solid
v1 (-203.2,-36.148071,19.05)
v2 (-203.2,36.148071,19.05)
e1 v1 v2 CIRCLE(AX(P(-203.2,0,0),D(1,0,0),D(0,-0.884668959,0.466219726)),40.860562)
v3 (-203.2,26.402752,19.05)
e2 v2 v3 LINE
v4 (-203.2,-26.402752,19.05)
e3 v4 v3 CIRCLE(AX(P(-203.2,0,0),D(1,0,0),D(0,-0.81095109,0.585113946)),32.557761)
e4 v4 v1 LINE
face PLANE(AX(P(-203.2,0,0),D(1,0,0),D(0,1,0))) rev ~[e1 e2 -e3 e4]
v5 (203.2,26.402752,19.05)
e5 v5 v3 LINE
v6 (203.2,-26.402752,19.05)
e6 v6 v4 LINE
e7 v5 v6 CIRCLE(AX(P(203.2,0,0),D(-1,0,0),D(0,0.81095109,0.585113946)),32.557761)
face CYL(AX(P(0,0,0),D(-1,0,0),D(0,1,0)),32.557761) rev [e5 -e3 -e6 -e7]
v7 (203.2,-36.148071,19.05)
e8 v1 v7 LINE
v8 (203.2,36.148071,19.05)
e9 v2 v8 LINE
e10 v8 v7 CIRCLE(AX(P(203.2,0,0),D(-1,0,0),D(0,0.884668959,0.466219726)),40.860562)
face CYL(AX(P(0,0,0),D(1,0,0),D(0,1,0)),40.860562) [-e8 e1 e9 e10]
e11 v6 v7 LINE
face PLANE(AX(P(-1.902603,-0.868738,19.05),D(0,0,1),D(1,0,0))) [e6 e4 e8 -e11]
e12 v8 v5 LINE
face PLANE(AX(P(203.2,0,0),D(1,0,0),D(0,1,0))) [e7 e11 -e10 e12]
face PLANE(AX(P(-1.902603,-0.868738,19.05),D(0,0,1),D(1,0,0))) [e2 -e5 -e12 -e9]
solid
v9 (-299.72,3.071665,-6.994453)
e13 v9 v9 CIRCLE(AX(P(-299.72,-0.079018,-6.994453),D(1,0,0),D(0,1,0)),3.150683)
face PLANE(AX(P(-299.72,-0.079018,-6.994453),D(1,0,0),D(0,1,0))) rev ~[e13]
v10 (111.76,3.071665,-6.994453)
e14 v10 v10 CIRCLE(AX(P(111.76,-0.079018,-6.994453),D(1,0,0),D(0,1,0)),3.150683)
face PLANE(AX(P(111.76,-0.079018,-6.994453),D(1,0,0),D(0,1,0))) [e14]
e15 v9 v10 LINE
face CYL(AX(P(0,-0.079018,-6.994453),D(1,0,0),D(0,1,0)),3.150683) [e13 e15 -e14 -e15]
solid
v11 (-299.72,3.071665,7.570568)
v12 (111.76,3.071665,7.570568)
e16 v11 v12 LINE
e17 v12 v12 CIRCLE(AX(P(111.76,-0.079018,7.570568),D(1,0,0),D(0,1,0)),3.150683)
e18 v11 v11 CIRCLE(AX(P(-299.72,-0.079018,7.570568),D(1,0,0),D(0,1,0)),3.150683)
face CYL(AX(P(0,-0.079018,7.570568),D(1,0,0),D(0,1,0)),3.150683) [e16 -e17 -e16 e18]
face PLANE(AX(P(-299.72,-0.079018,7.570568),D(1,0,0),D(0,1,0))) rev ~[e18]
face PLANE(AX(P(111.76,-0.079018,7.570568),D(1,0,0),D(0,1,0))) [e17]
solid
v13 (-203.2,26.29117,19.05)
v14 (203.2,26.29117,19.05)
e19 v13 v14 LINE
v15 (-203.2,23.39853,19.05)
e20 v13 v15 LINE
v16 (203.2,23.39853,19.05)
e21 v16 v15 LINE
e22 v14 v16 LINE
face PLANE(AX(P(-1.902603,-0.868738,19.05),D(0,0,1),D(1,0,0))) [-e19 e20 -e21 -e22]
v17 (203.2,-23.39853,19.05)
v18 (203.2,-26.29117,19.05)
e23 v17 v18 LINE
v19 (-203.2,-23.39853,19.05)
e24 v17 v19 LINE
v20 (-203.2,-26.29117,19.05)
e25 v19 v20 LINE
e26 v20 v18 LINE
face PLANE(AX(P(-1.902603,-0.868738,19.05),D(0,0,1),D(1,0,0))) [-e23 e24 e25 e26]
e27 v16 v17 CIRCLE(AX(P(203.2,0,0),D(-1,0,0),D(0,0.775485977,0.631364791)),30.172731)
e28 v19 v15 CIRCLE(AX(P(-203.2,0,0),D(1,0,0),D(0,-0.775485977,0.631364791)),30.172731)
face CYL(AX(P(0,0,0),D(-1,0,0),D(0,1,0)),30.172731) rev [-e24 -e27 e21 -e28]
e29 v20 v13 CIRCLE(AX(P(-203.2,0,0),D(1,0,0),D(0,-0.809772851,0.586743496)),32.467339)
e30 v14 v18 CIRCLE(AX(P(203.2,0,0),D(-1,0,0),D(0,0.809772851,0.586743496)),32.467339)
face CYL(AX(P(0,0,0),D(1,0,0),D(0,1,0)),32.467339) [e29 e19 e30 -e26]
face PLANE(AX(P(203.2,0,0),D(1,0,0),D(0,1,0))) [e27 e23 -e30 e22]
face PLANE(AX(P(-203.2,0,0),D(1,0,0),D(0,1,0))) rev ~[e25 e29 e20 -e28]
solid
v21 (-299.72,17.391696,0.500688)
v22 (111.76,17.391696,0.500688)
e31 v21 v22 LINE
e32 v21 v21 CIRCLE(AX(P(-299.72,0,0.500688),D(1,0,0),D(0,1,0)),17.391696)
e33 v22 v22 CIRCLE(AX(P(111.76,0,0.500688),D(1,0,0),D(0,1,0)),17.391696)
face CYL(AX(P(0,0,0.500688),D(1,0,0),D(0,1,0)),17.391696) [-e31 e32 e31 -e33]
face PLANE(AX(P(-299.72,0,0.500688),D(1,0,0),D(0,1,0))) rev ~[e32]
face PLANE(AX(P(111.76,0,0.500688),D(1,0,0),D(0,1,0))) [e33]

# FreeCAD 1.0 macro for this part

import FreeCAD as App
import Part
import Sketcher

V = App.Vector
Q = App.Units.Quantity

doc = App.newDocument("Part")
body = doc.addObject("PartDesign::Body", "Body")

# Sketch on YZ plane
sketch1 = body.newObject("Sketcher::SketchObject", "Sketch")
sketch1.AttachmentSupport = (doc.getObject("YZ_Plane"), [""])
sketch1.MapMode = "FlatFace"
sketch1.addGeometry(Part.Circle(V(0, 0, 0), V(0, 0, 1), 32.467339), False)
sketch1.addGeometry(Part.Circle(V(0, 0, 0), V(0, 0, 1), 30.172731), False)
sketch1.addConstraint(Sketcher.Constraint("Coincident", 0, 3, -1, 1))
sketch1.addConstraint(Sketcher.Constraint("Coincident", 1, 3, -1, 1))
sketch1.addConstraint(Sketcher.Constraint("Diameter", 0, 64.934678))
sketch1.addConstraint(Sketcher.Constraint("Diameter", 1, 60.345462))
pad1 = body.newObject("PartDesign::Pad", "Pad")
pad1.Profile = sketch1
pad1.Type = "TwoLengths"
pad1.Length = Q("8 in")
pad1.Length2 = Q("8 in")
body2 = doc.addObject("PartDesign::Body", "Body001")

# Sketch on YZ plane
sketch2 = body2.newObject("Sketcher::SketchObject", "Sketch001")
sketch2.AttachmentSupport = (doc.getObject("YZ_Plane001"), [""])
sketch2.MapMode = "FlatFace"
sketch2.addGeometry(Part.Circle(V(0, 0, 0), V(0, 0, 1), 40.860562), False)
sketch2.addGeometry(Part.Circle(V(0, 0, 0), V(0, 0, 1), 32.557761), False)
sketch2.addConstraint(Sketcher.Constraint("Coincident", 0, 3, -1, 1))
sketch2.addConstraint(Sketcher.Constraint("Coincident", 1, 3, -1, 1))
sketch2.addConstraint(Sketcher.Constraint("Diameter", 1, 65.115522))
sketch2.addConstraint(Sketcher.Constraint("Diameter", 0, 81.721124))
pad2 = body2.newObject("PartDesign::Pad", "Pad001")
pad2.Profile = sketch2
pad2.Type = "TwoLengths"
pad2.Length = Q("8 in")
pad2.Length2 = Q("8 in")
body3 = doc.addObject("PartDesign::Body", "Body002")
body3.AllowCompound = True

# Sketch on YZ plane
sketch3 = body3.newObject("Sketcher::SketchObject", "Sketch002")
sketch3.AttachmentSupport = (doc.getObject("YZ_Plane002"), [""])
sketch3.MapMode = "FlatFace"
sketch3.addGeometry(Part.Circle(V(-0.079018, 7.570568, 0), V(0, 0, 1), 3.150683), False)
sketch3.addGeometry(Part.Circle(V(-0.079018, -6.994453, 0), V(0, 0, 1), 3.150683), False)
sketch3.addConstraint(Sketcher.Constraint("Equal", 0, 1))
sketch3.addConstraint(Sketcher.Constraint("Vertical", 0, 3, 1, 3))
sketch3.addConstraint(Sketcher.Constraint("Diameter", 0, 6.301366))
sketch3.addConstraint(Sketcher.Constraint("DistanceY", 1, 3, 0, 3, 14.565021))
sketch3.addConstraint(Sketcher.Constraint("DistanceX", 0, 3, -1, 1, 0.079018))
sketch3.addConstraint(Sketcher.Constraint("DistanceY", -1, 1, 0, 3, 7.570568))
pad3 = body3.newObject("PartDesign::Pad", "Pad002")
pad3.Profile = sketch3
pad3.Type = "TwoLengths"
pad3.Length = Q("4.4 in")
pad3.Length2 = Q("11.8 in")
body4 = doc.addObject("PartDesign::Body", "Body003")

# Sketch on XY plane
sketch4 = body4.newObject("Sketcher::SketchObject", "Sketch003")
sketch4.AttachmentSupport = (doc.getObject("XY_Plane003"), [""])
sketch4.MapMode = "FlatFace"
sketch4.AttachmentOffset = App.Placement(V(0, 0, 0.75 * 25.4), App.Rotation())
sketch4.addGeometry(Part.LineSegment(V(-214.917138, 45.599114, 0), V(-214.917138, -47.33659, 0)), False)
sketch4.addGeometry(Part.LineSegment(V(-214.917138, -47.33659, 0), V(211.111932, -47.33659, 0)), False)
sketch4.addGeometry(Part.LineSegment(V(211.111932, -47.33659, 0), V(211.111932, 45.599114, 0)), False)
sketch4.addGeometry(Part.LineSegment(V(211.111932, 45.599114, 0), V(-214.917138, 45.599114, 0)), False)
sketch4.addConstraint(Sketcher.Constraint("Coincident", 0, 2, 1, 1))
sketch4.addConstraint(Sketcher.Constraint("Coincident", 1, 2, 2, 1))
sketch4.addConstraint(Sketcher.Constraint("Coincident", 2, 2, 3, 1))
sketch4.addConstraint(Sketcher.Constraint("Coincident", 3, 2, 0, 1))
sketch4.addConstraint(Sketcher.Constraint("Vertical", 0))
sketch4.addConstraint(Sketcher.Constraint("Horizontal", 1))
sketch4.addConstraint(Sketcher.Constraint("Vertical", 2))
sketch4.addConstraint(Sketcher.Constraint("Horizontal", 3))
sketch4.addConstraint(Sketcher.Constraint("DistanceX", 1, 1, 1, 2, 426.029071))
sketch4.addConstraint(Sketcher.Constraint("DistanceY", 0, 2, 0, 1, 92.935704))
sketch4.addConstraint(Sketcher.Constraint("DistanceX", 0, 2, -1, 1, 214.917138))
sketch4.addConstraint(Sketcher.Constraint("DistanceY", 0, 2, -1, 1, 47.33659))
pad4 = body4.newObject("PartDesign::Pad", "Pad003")
pad4.Profile = sketch4
pad4.Length = Q("1.41 in")
doc.recompute()

body5 = doc.addObject("PartDesign::Body", "Body004")
body5.BaseFeature = body4
boolean = body.newObject("PartDesign::Boolean", "Boolean")
boolean.Type = "Cut"
boolean.addObjects([body5])
doc.recompute()

boolean2 = body2.newObject("PartDesign::Boolean", "Boolean001")
boolean2.Type = "Cut"
boolean2.addObjects([body4])
body6 = doc.addObject("PartDesign::Body", "Body005")

# Sketch on YZ plane
sketch5 = body6.newObject("Sketcher::SketchObject", "Sketch004")
sketch5.AttachmentSupport = (doc.getObject("YZ_Plane005"), [""])
sketch5.MapMode = "FlatFace"
sketch5.addGeometry(Part.Circle(V(0, 0.500688, 0), V(0, 0, 1), 17.391696), False)
sketch5.addConstraint(Sketcher.Constraint("PointOnObject", 0, 3, -2))
sketch5.addConstraint(Sketcher.Constraint("Diameter", 0, 34.783392))
sketch5.addConstraint(Sketcher.Constraint("DistanceY", -1, 1, 0, 3, 0.500688))
pad5 = body6.newObject("PartDesign::Pad", "Pad004")
pad5.Profile = sketch5
pad5.Type = "TwoLengths"
pad5.Length = Q("4.4 in")
pad5.Length2 = Q("11.8 in")

doc.recompute()
